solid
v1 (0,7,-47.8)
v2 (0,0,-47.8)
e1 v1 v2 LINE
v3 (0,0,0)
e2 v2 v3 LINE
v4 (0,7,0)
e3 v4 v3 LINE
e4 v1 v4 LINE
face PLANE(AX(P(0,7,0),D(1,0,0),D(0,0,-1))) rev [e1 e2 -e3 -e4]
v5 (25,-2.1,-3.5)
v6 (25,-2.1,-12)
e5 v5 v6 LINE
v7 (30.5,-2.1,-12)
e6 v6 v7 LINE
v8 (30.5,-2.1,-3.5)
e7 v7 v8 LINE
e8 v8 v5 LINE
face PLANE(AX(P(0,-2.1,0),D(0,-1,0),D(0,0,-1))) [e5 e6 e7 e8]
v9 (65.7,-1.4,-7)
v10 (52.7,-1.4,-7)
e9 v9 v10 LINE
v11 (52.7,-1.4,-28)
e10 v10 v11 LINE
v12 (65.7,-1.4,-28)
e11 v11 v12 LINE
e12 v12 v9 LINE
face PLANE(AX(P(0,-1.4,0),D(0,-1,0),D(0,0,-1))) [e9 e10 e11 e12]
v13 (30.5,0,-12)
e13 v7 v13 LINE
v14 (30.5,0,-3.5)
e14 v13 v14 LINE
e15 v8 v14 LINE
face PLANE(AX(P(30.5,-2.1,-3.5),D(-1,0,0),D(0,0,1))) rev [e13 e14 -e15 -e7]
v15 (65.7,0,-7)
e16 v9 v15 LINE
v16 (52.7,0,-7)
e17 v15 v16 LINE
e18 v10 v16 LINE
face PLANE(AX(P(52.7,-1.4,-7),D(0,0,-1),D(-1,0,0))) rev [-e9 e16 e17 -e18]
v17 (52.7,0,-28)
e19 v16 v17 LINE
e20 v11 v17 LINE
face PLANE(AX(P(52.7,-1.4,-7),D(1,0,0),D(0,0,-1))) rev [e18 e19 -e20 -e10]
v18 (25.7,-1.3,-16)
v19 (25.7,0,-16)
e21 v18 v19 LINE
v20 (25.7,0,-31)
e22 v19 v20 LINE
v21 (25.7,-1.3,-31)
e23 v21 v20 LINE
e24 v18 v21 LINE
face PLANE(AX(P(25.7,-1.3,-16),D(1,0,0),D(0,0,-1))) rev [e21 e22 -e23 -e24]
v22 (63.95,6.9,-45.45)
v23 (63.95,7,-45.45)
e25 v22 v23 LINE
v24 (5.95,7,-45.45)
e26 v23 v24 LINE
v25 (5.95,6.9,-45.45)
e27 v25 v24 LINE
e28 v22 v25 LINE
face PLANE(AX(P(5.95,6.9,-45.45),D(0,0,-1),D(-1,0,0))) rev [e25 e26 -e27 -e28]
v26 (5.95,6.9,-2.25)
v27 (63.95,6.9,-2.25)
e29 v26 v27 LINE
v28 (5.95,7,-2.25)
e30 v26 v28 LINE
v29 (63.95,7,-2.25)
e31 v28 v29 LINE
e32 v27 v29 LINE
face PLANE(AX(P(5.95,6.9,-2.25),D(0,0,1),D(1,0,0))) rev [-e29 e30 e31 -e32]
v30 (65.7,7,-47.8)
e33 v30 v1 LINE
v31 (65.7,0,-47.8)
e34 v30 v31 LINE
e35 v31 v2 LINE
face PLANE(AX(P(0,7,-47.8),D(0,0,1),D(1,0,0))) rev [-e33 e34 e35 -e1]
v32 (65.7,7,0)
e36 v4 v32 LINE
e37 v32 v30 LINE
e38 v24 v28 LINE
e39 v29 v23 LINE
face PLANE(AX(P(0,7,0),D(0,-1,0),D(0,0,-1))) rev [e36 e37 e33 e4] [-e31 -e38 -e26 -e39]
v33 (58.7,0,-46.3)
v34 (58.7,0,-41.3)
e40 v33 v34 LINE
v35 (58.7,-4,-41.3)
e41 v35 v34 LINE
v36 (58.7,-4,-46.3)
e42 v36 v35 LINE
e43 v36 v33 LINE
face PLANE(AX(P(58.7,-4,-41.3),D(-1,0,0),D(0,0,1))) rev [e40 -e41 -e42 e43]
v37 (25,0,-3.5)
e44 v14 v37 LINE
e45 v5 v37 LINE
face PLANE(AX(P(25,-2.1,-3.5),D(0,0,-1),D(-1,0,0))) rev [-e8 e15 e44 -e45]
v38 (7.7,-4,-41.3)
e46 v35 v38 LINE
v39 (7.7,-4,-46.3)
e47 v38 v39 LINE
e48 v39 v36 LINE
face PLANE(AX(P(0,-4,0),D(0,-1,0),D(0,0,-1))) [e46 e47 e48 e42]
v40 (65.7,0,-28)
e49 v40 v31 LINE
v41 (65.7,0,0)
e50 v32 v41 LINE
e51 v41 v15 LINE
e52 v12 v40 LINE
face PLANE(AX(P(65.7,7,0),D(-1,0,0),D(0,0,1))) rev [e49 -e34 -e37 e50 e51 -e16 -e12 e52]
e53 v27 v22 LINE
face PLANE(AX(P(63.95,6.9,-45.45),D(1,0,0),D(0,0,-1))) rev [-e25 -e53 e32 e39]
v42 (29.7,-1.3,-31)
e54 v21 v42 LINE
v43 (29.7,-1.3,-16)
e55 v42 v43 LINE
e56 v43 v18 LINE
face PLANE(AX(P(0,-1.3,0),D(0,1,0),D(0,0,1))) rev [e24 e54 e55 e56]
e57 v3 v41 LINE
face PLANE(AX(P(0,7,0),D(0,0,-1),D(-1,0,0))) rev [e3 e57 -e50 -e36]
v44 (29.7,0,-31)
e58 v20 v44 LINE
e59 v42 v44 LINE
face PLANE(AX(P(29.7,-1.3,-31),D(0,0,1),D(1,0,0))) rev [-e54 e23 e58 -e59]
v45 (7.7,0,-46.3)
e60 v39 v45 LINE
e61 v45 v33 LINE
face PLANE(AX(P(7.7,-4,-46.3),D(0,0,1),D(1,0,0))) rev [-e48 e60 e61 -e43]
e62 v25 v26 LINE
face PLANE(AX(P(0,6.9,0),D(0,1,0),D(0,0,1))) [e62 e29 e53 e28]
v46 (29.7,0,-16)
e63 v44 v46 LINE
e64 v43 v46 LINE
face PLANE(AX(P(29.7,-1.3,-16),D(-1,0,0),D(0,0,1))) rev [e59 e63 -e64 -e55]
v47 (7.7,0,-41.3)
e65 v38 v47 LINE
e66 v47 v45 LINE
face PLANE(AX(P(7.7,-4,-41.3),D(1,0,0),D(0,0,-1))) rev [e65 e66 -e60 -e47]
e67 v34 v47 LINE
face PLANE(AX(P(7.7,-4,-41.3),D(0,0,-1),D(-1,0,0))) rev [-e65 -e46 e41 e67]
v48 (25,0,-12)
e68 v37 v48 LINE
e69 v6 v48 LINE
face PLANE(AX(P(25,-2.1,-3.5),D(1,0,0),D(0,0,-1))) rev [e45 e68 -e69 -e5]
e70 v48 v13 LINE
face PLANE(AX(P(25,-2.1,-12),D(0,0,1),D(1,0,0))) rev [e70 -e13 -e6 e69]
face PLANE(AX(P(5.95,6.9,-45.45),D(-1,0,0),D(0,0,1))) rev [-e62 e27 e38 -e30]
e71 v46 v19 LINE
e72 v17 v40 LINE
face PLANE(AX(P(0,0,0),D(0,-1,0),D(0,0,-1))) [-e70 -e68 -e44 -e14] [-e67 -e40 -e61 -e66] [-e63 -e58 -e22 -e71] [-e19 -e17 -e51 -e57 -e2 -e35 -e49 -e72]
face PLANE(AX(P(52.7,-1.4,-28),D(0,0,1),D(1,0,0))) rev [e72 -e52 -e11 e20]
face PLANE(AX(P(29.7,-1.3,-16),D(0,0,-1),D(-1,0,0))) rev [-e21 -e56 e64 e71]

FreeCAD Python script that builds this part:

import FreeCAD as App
import Part
import Sketcher

V = App.Vector


def add_polygon(sketch, points):
    """Adds a closed chain of lines whose ends are joined by coincident constraints."""
    first, n = sketch.GeometryCount, len(points)
    for a, b in zip(points, points[1:] + points[:1]):
        sketch.addGeometry(Part.LineSegment(App.Vector(*a, 0), App.Vector(*b, 0)), False)
    for i in range(n):
        sketch.addConstraint(Sketcher.Constraint("Coincident", first + i, 2, first + (i + 1) % n, 1))

doc = App.newDocument("Part")
params = doc.addObject("Spreadsheet::Sheet", "Params")
for row, (alias, value) in enumerate([
    ("sketch1_width", "65.7 mm"),
    ("sketch1_height", "47.8 mm"),
    ("pad1_length", "7 mm"),
    ("sketch2_width", "58 mm"),
    ("sketch2_height", "43.2 mm"),
    ("pocket1_length", "0.1 mm"),
    ("sketch3_width", "13 mm"),
    ("sketch3_height", "21 mm"),
    ("pad2_length", "1.4 mm"),
    ("sketch4_width", "5.5 mm"),
    ("sketch4_height", "8.5 mm"),
    ("pad3_length", "2.1 mm"),
    ("sketch5_width", "4 mm"),
    ("sketch5_height", "15 mm"),
    ("pad4_length", "1.3 mm"),
    ("sketch6_width", "51 mm"),
    ("sketch6_height", "5 mm"),
    ("pad5_length", "4 mm"),
], start=1):
    params.set(f"A{row}", alias)
    params.set(f"B{row}", "=" + value)
    params.setAlias(f"B{row}", alias)

body = doc.addObject("PartDesign::Body", "Body")

# Sketch on XZ plane
sketch1 = body.newObject("Sketcher::SketchObject", "Sketch")
sketch1.AttachmentSupport = (doc.getObject("XZ_Plane"), [""])
sketch1.MapMode = "FlatFace"
add_polygon(sketch1, [(0, -47.8), (0, 0), (65.7, 0), (65.7, -47.8)])  # lines 0-3
sketch1.addConstraint([
    Sketcher.Constraint("Vertical", 0),
    Sketcher.Constraint("Horizontal", 1),
    Sketcher.Constraint("Vertical", 2),
    Sketcher.Constraint("Horizontal", 3),
    Sketcher.Constraint("Coincident", 0, 2, -1, 1),
    Sketcher.Constraint("DistanceX", 1, 1, 1, 2, 65.7),
    Sketcher.Constraint("DistanceY", 0, 1, 0, 2, 47.8),
])
sketch1.setExpression("Constraints[9]", "Params.sketch1_width")
sketch1.setExpression("Constraints[10]", "Params.sketch1_height")
pad1 = body.newObject("PartDesign::Pad", "Pad")
pad1.Profile = sketch1
pad1.setExpression("Length", "Params.pad1_length")
pad1.Reversed = True

# Sketch on XZ plane
sketch2 = body.newObject("Sketcher::SketchObject", "Sketch001")
sketch2.AttachmentSupport = (doc.getObject("XZ_Plane"), [""])
sketch2.MapMode = "FlatFace"
sketch2.AttachmentOffset = App.Placement(V(0, 0, -7), App.Rotation())
add_polygon(sketch2, [(5.95, -45.45), (5.95, -2.25), (63.95, -2.25), (63.95, -45.45)])  # lines 0-3
sketch2.addConstraint([
    Sketcher.Constraint("Vertical", 0),
    Sketcher.Constraint("Horizontal", 1),
    Sketcher.Constraint("Vertical", 2),
    Sketcher.Constraint("Horizontal", 3),
    Sketcher.Constraint("DistanceX", 1, 1, 1, 2, 58.0),
    Sketcher.Constraint("DistanceY", 0, 1, 0, 2, 43.2),
    Sketcher.Constraint("DistanceX", -1, 1, 0, 2, 5.95),
    Sketcher.Constraint("DistanceY", 0, 2, -1, 1, 2.25),
])
sketch2.setExpression("Constraints[8]", "Params.sketch2_width")
sketch2.setExpression("Constraints[9]", "Params.sketch2_height")
pocket1 = body.newObject("PartDesign::Pocket", "Pocket")
pocket1.Profile = sketch2
pocket1.setExpression("Length", "Params.pocket1_length")
pocket1.Reversed = True

# Sketch on XZ plane
sketch3 = body.newObject("Sketcher::SketchObject", "Sketch002")
sketch3.AttachmentSupport = (doc.getObject("XZ_Plane"), [""])
sketch3.MapMode = "FlatFace"
add_polygon(sketch3, [(52.7, -7), (52.7, -28), (65.7, -28), (65.7, -7)])  # lines 0-3
sketch3.addConstraint([
    Sketcher.Constraint("Vertical", 0),
    Sketcher.Constraint("Horizontal", 1),
    Sketcher.Constraint("Vertical", 2),
    Sketcher.Constraint("Horizontal", 3),
    Sketcher.Constraint("DistanceX", 1, 1, 1, 2, 13.0),
    Sketcher.Constraint("DistanceY", 0, 2, 0, 1, 21.0),
    Sketcher.Constraint("DistanceY", 0, 2, -1, 1, 28.0),
    Sketcher.Constraint("DistanceX", -1, 1, 0, 2, 52.7),
])
sketch3.setExpression("Constraints[8]", "Params.sketch3_width")
sketch3.setExpression("Constraints[9]", "Params.sketch3_height")
pad2 = body.newObject("PartDesign::Pad", "Pad001")
pad2.Profile = sketch3
pad2.setExpression("Length", "Params.pad2_length")

# Sketch on XZ plane
sketch4 = body.newObject("Sketcher::SketchObject", "Sketch003")
sketch4.AttachmentSupport = (doc.getObject("XZ_Plane"), [""])
sketch4.MapMode = "FlatFace"
add_polygon(sketch4, [(25, -3.5), (25, -12), (30.5, -12), (30.5, -3.5)])  # lines 0-3
sketch4.addConstraint([
    Sketcher.Constraint("Vertical", 0),
    Sketcher.Constraint("Horizontal", 1),
    Sketcher.Constraint("Vertical", 2),
    Sketcher.Constraint("Horizontal", 3),
    Sketcher.Constraint("DistanceX", 1, 1, 1, 2, 5.5),
    Sketcher.Constraint("DistanceY", 0, 2, 0, 1, 8.5),
    Sketcher.Constraint("DistanceX", -1, 1, 0, 2, 25.0),
    Sketcher.Constraint("DistanceY", 0, 2, -1, 1, 12.0),
])
sketch4.setExpression("Constraints[8]", "Params.sketch4_width")
sketch4.setExpression("Constraints[9]", "Params.sketch4_height")
pad3 = body.newObject("PartDesign::Pad", "Pad002")
pad3.Profile = sketch4
pad3.setExpression("Length", "Params.pad3_length")

# Sketch on XZ plane
sketch5 = body.newObject("Sketcher::SketchObject", "Sketch004")
sketch5.AttachmentSupport = (doc.getObject("XZ_Plane"), [""])
sketch5.MapMode = "FlatFace"
add_polygon(sketch5, [(25.7, -16), (25.7, -31), (29.7, -31), (29.7, -16)])  # lines 0-3
sketch5.addConstraint([
    Sketcher.Constraint("Vertical", 0),
    Sketcher.Constraint("Horizontal", 1),
    Sketcher.Constraint("Vertical", 2),
    Sketcher.Constraint("Horizontal", 3),
    Sketcher.Constraint("DistanceX", 1, 1, 1, 2, 4.0),
    Sketcher.Constraint("DistanceY", 0, 2, 0, 1, 15.0),
    Sketcher.Constraint("DistanceY", 0, 2, -1, 1, 31.0),
    Sketcher.Constraint("DistanceX", -1, 1, 0, 2, 25.7),
])
sketch5.setExpression("Constraints[8]", "Params.sketch5_width")
sketch5.setExpression("Constraints[9]", "Params.sketch5_height")
pad4 = body.newObject("PartDesign::Pad", "Pad003")
pad4.Profile = sketch5
pad4.setExpression("Length", "Params.pad4_length")

# Sketch on XZ plane
sketch6 = body.newObject("Sketcher::SketchObject", "Sketch005")
sketch6.AttachmentSupport = (doc.getObject("XZ_Plane"), [""])
sketch6.MapMode = "FlatFace"
add_polygon(sketch6, [(58.7, -46.3), (58.7, -41.3), (7.7, -41.3), (7.7, -46.3)])  # lines 0-3
sketch6.addConstraint([
    Sketcher.Constraint("Vertical", 0),
    Sketcher.Constraint("Horizontal", 1),
    Sketcher.Constraint("Vertical", 2),
    Sketcher.Constraint("Horizontal", 3),
    Sketcher.Constraint("DistanceX", 1, 2, 1, 1, 51.0),
    Sketcher.Constraint("DistanceY", 0, 1, 0, 2, 5.0),
    Sketcher.Constraint("DistanceX", -1, 1, 0, 2, 58.7),
    Sketcher.Constraint("DistanceY", 0, 2, -1, 1, 41.3),
])
sketch6.setExpression("Constraints[8]", "Params.sketch6_width")
sketch6.setExpression("Constraints[9]", "Params.sketch6_height")
pad5 = body.newObject("PartDesign::Pad", "Pad004")
pad5.Profile = sketch6
pad5.setExpression("Length", "Params.pad5_length")

doc.recompute()
